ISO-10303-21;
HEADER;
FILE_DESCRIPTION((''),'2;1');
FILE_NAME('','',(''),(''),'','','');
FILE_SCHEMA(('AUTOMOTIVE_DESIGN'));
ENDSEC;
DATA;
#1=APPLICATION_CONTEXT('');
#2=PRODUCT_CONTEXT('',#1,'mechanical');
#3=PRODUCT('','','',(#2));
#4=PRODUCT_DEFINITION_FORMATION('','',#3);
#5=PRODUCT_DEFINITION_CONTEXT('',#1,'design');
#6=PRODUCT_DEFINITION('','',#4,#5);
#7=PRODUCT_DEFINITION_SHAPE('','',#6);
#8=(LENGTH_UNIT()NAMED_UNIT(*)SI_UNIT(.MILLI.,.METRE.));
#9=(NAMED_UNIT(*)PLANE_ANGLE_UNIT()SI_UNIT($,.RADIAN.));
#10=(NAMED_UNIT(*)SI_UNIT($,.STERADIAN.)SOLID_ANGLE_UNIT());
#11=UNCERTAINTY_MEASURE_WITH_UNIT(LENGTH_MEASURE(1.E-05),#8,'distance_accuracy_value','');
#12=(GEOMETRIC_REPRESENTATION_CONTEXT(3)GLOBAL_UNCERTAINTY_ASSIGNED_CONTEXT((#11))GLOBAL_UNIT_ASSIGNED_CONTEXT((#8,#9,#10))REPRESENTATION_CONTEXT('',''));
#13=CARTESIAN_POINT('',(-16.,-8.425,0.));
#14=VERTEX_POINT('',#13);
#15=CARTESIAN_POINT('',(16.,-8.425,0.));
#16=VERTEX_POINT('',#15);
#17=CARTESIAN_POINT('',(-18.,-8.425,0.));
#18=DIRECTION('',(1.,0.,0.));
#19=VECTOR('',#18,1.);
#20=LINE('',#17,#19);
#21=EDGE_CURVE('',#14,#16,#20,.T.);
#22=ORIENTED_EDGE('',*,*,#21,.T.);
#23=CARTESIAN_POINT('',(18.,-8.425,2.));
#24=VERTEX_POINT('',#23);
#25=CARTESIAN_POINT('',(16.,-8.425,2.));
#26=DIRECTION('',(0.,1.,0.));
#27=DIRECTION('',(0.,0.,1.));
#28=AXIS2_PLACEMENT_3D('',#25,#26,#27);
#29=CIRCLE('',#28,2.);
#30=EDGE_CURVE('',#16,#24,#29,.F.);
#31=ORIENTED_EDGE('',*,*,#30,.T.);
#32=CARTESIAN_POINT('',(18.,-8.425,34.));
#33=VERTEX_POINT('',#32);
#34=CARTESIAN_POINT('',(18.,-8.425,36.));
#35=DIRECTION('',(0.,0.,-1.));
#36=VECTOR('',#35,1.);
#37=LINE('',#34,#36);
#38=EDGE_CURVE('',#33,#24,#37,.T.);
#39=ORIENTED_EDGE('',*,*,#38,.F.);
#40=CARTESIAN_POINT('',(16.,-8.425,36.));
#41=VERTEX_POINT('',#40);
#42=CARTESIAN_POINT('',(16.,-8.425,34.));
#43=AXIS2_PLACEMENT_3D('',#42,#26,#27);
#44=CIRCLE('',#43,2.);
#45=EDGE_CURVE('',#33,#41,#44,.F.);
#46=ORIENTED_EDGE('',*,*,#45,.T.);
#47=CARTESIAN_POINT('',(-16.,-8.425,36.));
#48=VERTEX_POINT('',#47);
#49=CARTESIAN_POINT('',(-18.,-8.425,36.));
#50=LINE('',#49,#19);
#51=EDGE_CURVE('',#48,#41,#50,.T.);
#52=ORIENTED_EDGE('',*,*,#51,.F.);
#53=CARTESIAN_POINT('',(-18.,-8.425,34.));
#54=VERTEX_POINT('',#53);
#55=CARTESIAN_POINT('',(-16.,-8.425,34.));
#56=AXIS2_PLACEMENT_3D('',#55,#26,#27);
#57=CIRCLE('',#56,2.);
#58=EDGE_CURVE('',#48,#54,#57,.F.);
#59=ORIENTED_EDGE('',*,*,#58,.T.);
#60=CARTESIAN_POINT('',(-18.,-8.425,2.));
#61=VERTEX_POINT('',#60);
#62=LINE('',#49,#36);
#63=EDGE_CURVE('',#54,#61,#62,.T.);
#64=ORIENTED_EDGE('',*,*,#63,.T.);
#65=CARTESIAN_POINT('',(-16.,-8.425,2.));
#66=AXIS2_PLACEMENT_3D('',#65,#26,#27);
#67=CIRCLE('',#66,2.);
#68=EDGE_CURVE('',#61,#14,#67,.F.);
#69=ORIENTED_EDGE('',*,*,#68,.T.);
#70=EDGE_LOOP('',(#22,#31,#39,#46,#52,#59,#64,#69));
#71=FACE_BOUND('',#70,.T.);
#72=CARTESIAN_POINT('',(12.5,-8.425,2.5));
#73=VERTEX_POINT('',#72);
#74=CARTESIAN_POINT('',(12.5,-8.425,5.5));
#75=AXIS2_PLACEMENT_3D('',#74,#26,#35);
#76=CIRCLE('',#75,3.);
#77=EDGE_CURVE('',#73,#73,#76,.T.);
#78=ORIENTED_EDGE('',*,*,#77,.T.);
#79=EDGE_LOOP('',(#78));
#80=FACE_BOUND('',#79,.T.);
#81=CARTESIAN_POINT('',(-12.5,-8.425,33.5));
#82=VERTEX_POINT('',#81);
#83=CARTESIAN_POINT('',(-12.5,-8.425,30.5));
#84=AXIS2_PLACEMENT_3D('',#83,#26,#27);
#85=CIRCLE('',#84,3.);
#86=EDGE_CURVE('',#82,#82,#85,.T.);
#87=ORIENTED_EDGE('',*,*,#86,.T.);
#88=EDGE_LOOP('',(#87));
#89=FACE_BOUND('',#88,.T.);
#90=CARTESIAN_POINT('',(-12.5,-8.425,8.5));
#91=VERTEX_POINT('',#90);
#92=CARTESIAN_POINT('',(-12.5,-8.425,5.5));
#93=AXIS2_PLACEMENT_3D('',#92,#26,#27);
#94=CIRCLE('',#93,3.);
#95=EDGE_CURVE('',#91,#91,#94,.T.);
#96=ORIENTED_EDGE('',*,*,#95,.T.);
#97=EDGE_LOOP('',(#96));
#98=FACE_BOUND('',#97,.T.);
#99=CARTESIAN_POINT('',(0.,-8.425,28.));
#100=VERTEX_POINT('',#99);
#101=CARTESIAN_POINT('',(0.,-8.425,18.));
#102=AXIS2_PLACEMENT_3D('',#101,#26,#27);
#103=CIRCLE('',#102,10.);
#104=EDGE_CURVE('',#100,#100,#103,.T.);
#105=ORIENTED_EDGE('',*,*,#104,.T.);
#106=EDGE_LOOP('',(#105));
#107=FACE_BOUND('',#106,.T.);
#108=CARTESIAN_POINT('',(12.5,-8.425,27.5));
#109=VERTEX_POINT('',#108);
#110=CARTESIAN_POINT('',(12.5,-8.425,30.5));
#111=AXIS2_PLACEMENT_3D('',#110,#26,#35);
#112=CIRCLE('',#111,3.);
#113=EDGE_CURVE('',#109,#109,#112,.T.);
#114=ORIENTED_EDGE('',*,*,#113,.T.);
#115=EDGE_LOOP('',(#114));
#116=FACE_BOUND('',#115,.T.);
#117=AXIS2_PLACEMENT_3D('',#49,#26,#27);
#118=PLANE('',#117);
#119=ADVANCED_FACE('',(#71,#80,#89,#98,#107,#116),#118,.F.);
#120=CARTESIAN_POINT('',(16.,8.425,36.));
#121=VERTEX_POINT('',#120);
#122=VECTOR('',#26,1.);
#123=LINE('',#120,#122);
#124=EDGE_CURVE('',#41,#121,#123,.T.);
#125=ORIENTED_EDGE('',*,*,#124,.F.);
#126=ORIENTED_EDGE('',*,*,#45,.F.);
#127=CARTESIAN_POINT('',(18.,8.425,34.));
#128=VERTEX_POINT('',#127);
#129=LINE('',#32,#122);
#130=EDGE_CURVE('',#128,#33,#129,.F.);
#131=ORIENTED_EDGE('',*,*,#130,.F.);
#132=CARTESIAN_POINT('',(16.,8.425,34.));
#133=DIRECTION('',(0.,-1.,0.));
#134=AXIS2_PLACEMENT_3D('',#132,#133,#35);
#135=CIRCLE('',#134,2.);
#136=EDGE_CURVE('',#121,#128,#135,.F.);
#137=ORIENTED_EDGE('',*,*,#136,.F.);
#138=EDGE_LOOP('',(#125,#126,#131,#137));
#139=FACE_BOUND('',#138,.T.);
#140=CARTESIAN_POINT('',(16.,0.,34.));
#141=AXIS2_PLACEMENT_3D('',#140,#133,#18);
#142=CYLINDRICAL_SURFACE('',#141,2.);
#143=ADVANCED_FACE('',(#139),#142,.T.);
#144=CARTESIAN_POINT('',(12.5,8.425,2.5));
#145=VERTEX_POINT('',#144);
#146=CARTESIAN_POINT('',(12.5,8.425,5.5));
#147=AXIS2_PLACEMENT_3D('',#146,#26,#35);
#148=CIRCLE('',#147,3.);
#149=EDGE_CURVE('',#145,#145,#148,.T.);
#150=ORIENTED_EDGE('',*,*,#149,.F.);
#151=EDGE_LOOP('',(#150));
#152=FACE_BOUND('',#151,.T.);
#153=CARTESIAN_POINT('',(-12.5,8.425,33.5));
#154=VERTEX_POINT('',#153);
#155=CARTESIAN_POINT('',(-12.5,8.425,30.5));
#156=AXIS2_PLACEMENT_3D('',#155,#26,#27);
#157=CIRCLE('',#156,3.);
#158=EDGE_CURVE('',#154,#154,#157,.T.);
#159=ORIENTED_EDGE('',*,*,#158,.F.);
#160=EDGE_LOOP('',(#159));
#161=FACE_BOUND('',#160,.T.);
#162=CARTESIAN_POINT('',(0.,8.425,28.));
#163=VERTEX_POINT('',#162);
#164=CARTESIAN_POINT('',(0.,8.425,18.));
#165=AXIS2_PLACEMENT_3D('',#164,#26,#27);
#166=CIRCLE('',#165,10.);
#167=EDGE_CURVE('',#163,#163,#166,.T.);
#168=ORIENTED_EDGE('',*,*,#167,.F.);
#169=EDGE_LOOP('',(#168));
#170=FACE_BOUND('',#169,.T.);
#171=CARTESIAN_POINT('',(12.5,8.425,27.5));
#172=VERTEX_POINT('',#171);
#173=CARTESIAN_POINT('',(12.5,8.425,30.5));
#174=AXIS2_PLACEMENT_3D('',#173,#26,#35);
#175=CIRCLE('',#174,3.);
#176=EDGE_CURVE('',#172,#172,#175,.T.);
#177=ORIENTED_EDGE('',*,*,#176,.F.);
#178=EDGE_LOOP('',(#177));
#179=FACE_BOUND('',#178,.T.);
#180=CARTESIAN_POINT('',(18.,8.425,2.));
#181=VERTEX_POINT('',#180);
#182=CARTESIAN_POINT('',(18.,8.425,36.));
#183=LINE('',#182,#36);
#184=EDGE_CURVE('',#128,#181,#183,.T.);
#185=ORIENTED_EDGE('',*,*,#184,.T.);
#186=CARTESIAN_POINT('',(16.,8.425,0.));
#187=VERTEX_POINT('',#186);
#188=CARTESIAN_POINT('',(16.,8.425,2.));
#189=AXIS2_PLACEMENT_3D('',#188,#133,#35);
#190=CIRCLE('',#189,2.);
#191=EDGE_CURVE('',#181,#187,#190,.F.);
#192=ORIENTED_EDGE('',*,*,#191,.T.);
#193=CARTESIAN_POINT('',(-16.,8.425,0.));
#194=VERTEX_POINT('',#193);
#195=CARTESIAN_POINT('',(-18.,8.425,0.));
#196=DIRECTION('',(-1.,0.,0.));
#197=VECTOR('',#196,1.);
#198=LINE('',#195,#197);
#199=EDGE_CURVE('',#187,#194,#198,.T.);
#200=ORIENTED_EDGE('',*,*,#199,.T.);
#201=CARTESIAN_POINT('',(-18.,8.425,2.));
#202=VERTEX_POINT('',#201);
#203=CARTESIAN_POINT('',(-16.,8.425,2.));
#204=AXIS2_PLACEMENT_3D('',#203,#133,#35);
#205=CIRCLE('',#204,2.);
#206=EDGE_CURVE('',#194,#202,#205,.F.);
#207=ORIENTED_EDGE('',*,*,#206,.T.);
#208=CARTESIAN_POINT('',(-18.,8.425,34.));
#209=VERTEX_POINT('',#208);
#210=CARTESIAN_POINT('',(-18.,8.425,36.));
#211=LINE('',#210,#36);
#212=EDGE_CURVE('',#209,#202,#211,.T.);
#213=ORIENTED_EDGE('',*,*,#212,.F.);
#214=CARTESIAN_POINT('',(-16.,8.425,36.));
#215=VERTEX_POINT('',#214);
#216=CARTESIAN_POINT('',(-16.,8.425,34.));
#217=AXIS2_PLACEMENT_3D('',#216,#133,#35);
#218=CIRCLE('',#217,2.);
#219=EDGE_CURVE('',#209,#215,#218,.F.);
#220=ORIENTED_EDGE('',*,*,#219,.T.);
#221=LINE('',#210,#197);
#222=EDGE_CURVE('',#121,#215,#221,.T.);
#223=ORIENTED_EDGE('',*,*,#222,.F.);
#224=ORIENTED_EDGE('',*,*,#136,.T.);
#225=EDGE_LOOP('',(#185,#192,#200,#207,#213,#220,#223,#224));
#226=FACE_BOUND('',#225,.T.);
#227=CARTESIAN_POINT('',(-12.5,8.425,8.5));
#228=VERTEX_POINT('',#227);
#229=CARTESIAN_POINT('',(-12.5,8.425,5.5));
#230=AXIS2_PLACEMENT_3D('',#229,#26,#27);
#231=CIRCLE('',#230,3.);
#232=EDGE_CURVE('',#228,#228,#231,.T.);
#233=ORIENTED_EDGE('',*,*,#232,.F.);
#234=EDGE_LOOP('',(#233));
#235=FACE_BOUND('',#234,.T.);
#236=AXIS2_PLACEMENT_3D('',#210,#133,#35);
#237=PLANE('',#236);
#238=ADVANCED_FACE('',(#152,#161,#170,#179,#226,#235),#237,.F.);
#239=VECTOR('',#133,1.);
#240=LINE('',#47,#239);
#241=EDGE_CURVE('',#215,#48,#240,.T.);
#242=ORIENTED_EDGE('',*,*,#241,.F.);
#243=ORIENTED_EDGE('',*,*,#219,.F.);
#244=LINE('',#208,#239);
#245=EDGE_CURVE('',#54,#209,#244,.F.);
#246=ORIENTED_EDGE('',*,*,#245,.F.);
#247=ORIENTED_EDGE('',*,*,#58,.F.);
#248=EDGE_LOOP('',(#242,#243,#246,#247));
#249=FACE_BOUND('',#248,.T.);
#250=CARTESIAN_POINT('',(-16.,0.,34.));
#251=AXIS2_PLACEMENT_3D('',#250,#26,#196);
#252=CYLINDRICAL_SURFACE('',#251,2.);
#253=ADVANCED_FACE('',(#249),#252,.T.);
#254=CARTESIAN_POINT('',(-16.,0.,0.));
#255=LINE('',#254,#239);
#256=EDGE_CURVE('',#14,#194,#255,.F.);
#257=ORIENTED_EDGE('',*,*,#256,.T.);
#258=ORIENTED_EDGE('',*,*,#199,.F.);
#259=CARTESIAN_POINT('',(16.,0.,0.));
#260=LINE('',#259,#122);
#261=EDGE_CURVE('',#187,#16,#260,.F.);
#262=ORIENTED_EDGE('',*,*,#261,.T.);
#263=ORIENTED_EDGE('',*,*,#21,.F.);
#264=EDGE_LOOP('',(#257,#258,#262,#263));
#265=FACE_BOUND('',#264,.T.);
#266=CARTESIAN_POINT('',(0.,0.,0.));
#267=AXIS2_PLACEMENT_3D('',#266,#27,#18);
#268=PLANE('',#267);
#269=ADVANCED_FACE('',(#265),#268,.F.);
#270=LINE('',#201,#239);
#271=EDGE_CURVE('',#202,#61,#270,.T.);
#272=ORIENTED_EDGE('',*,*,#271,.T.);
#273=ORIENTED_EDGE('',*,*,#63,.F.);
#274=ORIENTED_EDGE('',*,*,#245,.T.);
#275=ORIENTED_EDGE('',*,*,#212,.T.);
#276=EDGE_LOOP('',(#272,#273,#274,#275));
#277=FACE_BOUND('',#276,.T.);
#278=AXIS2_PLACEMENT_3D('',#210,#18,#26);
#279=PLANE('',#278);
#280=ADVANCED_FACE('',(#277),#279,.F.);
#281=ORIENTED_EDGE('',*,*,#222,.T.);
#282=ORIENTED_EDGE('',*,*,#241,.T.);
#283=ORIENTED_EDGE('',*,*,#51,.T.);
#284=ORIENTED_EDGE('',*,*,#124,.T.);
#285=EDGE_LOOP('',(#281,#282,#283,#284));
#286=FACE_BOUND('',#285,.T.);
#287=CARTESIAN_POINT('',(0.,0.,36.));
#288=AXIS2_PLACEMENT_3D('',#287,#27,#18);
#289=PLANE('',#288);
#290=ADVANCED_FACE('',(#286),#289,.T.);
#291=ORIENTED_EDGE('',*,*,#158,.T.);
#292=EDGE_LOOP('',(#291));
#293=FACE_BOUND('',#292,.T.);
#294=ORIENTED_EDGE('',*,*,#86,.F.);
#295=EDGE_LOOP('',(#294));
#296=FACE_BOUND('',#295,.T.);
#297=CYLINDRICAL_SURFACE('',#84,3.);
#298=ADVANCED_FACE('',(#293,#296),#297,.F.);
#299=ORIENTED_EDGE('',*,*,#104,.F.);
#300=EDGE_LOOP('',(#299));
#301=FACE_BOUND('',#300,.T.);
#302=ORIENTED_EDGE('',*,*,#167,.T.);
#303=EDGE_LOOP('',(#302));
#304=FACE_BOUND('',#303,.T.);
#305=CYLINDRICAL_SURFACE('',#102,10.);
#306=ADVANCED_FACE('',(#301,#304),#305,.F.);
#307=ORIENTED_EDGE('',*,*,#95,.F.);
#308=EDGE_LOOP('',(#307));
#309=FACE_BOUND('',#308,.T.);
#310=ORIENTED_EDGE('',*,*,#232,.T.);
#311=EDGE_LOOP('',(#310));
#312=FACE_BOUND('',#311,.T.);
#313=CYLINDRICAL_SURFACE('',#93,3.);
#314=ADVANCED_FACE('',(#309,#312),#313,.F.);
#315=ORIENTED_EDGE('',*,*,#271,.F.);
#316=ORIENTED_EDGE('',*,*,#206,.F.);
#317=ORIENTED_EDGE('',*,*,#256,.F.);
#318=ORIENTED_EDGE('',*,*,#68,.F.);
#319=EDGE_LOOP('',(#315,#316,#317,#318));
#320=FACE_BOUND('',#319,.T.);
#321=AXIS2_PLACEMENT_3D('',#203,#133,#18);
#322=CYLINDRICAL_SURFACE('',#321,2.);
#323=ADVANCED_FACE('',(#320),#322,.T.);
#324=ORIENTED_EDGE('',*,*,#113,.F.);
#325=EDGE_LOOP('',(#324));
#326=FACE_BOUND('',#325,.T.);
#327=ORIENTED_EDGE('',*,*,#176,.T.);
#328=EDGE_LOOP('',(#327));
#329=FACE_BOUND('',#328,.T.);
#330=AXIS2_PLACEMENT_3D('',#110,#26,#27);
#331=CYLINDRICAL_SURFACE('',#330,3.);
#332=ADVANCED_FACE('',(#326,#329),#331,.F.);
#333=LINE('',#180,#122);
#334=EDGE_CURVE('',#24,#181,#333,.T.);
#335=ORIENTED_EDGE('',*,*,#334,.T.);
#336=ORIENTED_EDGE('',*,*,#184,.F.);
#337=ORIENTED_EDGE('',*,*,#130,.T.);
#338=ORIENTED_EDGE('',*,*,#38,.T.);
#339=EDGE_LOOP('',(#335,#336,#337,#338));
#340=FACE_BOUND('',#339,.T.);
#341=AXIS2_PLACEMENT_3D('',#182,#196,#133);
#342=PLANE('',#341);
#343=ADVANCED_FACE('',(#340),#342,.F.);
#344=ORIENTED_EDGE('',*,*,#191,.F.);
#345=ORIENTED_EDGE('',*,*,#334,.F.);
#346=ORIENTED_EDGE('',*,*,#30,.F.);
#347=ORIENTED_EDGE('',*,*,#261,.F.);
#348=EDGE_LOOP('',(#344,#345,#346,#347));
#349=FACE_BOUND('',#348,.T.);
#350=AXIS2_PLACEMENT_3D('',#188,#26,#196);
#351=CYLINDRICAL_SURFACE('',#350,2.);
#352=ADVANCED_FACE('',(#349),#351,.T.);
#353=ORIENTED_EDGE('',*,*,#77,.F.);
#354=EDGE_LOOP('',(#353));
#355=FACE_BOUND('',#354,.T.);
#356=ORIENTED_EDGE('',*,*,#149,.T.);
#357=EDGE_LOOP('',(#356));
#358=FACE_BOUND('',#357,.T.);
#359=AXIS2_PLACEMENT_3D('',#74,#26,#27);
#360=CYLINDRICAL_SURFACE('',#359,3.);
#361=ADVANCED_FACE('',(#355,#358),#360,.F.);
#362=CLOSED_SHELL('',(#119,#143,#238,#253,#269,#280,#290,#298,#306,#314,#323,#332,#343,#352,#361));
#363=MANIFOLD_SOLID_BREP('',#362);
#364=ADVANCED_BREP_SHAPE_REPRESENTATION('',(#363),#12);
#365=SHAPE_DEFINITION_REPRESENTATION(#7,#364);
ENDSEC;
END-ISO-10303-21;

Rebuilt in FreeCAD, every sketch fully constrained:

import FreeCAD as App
import Part
import Sketcher
from FreeCAD import Vector


def edges_at(feature, points):
    """Names of the edges that pass closest to the given points."""
    edges = feature.Shape.Edges
    near = lambda p: min(range(len(edges)), key=lambda i: edges[i].distToShape(Part.Vertex(*p))[0])
    return sorted({f"Edge{near(p) + 1}" for p in points})

doc = App.newDocument("Part")
body = doc.addObject("PartDesign::Body", "Body")

sketch1 = doc.addObject("Sketcher::SketchObject", "Sketch")
body.addObject(sketch1)
sketch1.AttachmentSupport = (doc.XY_Plane, [""])
sketch1.MapMode = "FlatFace"
sketch1.addGeometry([
    Part.LineSegment(Vector(-18, 8, 0), Vector(-18, -8, 0)),
    Part.LineSegment(Vector(-18, -8, 0), Vector(18, -8, 0)),
    Part.LineSegment(Vector(18, -8, 0), Vector(18, 8, 0)),
    Part.LineSegment(Vector(18, 8, 0), Vector(-18, 8, 0)),
], False)
sketch1.addConstraint([
    Sketcher.Constraint("Coincident", 0, 2, 1, 1),
    Sketcher.Constraint("Coincident", 1, 2, 2, 1),
    Sketcher.Constraint("Coincident", 2, 2, 3, 1),
    Sketcher.Constraint("Coincident", 3, 2, 0, 1),
    Sketcher.Constraint("Vertical", 0),
    Sketcher.Constraint("Horizontal", 1),
    Sketcher.Constraint("Vertical", 2),
    Sketcher.Constraint("Horizontal", 3),
    Sketcher.Constraint("Symmetric", 0, 2, 2, 2, -1, 1),
    Sketcher.Constraint("DistanceX", 1, 1, 1, 2, 36.0),
    Sketcher.Constraint("DistanceY", 0, 2, 0, 1, 16.85),
])
pad1 = doc.addObject("PartDesign::Pad", "Pad")
body.addObject(pad1)
pad1.Profile = sketch1
pad1.Length = 36

sketch2 = doc.addObject("Sketcher::SketchObject", "Sketch001")
body.addObject(sketch2)
sketch2.AttachmentSupport = (doc.XZ_Plane, [""])
sketch2.MapMode = "FlatFace"
sketch2.AttachmentOffset = App.Placement(Vector(0, 0, -8.425), App.Rotation())
sketch2.addGeometry([
    Part.Circle(Vector(-12.5, 5.5, 0), Vector(0, 0, 1), 3),
    Part.Circle(Vector(-12.5, 30.5, 0), Vector(0, 0, 1), 3),
    Part.Circle(Vector(12.5, 30.5, 0), Vector(0, 0, 1), 3),
    Part.Circle(Vector(12.5, 5.5, 0), Vector(0, 0, 1), 3),
], False)
sketch2.addConstraint([
    Sketcher.Constraint("Equal", 0, 1),
    Sketcher.Constraint("Equal", 1, 2),
    Sketcher.Constraint("Equal", 2, 3),
    Sketcher.Constraint("Symmetric", 1, 3, 2, 3, -2),
    Sketcher.Constraint("Symmetric", 0, 3, 3, 3, -2),
    Sketcher.Constraint("Vertical", 0, 3, 1, 3),
    Sketcher.Constraint("Diameter", 0, 6.0),
    Sketcher.Constraint("DistanceY", 0, 3, 1, 3, 25.0),
    Sketcher.Constraint("DistanceX", 1, 3, 2, 3, 25.0),
    Sketcher.Constraint("DistanceY", -1, 1, 0, 3, 5.5),
])
pocket1 = doc.addObject("PartDesign::Pocket", "Pocket")
body.addObject(pocket1)
pocket1.Profile = sketch2
pocket1.Type = "ThroughAll"
pocket1.Reversed = True

sketch3 = doc.addObject("Sketcher::SketchObject", "Sketch002")
body.addObject(sketch3)
sketch3.AttachmentSupport = (doc.XZ_Plane, [""])
sketch3.MapMode = "FlatFace"
sketch3.AttachmentOffset = App.Placement(Vector(0, 0, -8.425), App.Rotation())
sketch3.addGeometry(Part.Circle(Vector(0, 18, 0), Vector(0, 0, 1), 10), False)
sketch3.addConstraint([
    Sketcher.Constraint("PointOnObject", 0, 3, -2),
    Sketcher.Constraint("Diameter", 0, 20.0),
    Sketcher.Constraint("DistanceY", -1, 1, 0, 3, 18.0),
])
pocket2 = doc.addObject("PartDesign::Pocket", "Pocket001")
body.addObject(pocket2)
pocket2.Profile = sketch3
pocket2.Type = "ThroughAll"
pocket2.Reversed = True
doc.recompute()

fillet = doc.addObject("PartDesign::Fillet", "Fillet")
body.addObject(fillet)
fillet.Base = (pocket2, edges_at(pocket2, [
    (-18, 0, 36),
    (18, 0, 36),
    (-18, 0, 0),
    (18, 0, 0),
]))
fillet.Radius = 2

doc.recompute()
